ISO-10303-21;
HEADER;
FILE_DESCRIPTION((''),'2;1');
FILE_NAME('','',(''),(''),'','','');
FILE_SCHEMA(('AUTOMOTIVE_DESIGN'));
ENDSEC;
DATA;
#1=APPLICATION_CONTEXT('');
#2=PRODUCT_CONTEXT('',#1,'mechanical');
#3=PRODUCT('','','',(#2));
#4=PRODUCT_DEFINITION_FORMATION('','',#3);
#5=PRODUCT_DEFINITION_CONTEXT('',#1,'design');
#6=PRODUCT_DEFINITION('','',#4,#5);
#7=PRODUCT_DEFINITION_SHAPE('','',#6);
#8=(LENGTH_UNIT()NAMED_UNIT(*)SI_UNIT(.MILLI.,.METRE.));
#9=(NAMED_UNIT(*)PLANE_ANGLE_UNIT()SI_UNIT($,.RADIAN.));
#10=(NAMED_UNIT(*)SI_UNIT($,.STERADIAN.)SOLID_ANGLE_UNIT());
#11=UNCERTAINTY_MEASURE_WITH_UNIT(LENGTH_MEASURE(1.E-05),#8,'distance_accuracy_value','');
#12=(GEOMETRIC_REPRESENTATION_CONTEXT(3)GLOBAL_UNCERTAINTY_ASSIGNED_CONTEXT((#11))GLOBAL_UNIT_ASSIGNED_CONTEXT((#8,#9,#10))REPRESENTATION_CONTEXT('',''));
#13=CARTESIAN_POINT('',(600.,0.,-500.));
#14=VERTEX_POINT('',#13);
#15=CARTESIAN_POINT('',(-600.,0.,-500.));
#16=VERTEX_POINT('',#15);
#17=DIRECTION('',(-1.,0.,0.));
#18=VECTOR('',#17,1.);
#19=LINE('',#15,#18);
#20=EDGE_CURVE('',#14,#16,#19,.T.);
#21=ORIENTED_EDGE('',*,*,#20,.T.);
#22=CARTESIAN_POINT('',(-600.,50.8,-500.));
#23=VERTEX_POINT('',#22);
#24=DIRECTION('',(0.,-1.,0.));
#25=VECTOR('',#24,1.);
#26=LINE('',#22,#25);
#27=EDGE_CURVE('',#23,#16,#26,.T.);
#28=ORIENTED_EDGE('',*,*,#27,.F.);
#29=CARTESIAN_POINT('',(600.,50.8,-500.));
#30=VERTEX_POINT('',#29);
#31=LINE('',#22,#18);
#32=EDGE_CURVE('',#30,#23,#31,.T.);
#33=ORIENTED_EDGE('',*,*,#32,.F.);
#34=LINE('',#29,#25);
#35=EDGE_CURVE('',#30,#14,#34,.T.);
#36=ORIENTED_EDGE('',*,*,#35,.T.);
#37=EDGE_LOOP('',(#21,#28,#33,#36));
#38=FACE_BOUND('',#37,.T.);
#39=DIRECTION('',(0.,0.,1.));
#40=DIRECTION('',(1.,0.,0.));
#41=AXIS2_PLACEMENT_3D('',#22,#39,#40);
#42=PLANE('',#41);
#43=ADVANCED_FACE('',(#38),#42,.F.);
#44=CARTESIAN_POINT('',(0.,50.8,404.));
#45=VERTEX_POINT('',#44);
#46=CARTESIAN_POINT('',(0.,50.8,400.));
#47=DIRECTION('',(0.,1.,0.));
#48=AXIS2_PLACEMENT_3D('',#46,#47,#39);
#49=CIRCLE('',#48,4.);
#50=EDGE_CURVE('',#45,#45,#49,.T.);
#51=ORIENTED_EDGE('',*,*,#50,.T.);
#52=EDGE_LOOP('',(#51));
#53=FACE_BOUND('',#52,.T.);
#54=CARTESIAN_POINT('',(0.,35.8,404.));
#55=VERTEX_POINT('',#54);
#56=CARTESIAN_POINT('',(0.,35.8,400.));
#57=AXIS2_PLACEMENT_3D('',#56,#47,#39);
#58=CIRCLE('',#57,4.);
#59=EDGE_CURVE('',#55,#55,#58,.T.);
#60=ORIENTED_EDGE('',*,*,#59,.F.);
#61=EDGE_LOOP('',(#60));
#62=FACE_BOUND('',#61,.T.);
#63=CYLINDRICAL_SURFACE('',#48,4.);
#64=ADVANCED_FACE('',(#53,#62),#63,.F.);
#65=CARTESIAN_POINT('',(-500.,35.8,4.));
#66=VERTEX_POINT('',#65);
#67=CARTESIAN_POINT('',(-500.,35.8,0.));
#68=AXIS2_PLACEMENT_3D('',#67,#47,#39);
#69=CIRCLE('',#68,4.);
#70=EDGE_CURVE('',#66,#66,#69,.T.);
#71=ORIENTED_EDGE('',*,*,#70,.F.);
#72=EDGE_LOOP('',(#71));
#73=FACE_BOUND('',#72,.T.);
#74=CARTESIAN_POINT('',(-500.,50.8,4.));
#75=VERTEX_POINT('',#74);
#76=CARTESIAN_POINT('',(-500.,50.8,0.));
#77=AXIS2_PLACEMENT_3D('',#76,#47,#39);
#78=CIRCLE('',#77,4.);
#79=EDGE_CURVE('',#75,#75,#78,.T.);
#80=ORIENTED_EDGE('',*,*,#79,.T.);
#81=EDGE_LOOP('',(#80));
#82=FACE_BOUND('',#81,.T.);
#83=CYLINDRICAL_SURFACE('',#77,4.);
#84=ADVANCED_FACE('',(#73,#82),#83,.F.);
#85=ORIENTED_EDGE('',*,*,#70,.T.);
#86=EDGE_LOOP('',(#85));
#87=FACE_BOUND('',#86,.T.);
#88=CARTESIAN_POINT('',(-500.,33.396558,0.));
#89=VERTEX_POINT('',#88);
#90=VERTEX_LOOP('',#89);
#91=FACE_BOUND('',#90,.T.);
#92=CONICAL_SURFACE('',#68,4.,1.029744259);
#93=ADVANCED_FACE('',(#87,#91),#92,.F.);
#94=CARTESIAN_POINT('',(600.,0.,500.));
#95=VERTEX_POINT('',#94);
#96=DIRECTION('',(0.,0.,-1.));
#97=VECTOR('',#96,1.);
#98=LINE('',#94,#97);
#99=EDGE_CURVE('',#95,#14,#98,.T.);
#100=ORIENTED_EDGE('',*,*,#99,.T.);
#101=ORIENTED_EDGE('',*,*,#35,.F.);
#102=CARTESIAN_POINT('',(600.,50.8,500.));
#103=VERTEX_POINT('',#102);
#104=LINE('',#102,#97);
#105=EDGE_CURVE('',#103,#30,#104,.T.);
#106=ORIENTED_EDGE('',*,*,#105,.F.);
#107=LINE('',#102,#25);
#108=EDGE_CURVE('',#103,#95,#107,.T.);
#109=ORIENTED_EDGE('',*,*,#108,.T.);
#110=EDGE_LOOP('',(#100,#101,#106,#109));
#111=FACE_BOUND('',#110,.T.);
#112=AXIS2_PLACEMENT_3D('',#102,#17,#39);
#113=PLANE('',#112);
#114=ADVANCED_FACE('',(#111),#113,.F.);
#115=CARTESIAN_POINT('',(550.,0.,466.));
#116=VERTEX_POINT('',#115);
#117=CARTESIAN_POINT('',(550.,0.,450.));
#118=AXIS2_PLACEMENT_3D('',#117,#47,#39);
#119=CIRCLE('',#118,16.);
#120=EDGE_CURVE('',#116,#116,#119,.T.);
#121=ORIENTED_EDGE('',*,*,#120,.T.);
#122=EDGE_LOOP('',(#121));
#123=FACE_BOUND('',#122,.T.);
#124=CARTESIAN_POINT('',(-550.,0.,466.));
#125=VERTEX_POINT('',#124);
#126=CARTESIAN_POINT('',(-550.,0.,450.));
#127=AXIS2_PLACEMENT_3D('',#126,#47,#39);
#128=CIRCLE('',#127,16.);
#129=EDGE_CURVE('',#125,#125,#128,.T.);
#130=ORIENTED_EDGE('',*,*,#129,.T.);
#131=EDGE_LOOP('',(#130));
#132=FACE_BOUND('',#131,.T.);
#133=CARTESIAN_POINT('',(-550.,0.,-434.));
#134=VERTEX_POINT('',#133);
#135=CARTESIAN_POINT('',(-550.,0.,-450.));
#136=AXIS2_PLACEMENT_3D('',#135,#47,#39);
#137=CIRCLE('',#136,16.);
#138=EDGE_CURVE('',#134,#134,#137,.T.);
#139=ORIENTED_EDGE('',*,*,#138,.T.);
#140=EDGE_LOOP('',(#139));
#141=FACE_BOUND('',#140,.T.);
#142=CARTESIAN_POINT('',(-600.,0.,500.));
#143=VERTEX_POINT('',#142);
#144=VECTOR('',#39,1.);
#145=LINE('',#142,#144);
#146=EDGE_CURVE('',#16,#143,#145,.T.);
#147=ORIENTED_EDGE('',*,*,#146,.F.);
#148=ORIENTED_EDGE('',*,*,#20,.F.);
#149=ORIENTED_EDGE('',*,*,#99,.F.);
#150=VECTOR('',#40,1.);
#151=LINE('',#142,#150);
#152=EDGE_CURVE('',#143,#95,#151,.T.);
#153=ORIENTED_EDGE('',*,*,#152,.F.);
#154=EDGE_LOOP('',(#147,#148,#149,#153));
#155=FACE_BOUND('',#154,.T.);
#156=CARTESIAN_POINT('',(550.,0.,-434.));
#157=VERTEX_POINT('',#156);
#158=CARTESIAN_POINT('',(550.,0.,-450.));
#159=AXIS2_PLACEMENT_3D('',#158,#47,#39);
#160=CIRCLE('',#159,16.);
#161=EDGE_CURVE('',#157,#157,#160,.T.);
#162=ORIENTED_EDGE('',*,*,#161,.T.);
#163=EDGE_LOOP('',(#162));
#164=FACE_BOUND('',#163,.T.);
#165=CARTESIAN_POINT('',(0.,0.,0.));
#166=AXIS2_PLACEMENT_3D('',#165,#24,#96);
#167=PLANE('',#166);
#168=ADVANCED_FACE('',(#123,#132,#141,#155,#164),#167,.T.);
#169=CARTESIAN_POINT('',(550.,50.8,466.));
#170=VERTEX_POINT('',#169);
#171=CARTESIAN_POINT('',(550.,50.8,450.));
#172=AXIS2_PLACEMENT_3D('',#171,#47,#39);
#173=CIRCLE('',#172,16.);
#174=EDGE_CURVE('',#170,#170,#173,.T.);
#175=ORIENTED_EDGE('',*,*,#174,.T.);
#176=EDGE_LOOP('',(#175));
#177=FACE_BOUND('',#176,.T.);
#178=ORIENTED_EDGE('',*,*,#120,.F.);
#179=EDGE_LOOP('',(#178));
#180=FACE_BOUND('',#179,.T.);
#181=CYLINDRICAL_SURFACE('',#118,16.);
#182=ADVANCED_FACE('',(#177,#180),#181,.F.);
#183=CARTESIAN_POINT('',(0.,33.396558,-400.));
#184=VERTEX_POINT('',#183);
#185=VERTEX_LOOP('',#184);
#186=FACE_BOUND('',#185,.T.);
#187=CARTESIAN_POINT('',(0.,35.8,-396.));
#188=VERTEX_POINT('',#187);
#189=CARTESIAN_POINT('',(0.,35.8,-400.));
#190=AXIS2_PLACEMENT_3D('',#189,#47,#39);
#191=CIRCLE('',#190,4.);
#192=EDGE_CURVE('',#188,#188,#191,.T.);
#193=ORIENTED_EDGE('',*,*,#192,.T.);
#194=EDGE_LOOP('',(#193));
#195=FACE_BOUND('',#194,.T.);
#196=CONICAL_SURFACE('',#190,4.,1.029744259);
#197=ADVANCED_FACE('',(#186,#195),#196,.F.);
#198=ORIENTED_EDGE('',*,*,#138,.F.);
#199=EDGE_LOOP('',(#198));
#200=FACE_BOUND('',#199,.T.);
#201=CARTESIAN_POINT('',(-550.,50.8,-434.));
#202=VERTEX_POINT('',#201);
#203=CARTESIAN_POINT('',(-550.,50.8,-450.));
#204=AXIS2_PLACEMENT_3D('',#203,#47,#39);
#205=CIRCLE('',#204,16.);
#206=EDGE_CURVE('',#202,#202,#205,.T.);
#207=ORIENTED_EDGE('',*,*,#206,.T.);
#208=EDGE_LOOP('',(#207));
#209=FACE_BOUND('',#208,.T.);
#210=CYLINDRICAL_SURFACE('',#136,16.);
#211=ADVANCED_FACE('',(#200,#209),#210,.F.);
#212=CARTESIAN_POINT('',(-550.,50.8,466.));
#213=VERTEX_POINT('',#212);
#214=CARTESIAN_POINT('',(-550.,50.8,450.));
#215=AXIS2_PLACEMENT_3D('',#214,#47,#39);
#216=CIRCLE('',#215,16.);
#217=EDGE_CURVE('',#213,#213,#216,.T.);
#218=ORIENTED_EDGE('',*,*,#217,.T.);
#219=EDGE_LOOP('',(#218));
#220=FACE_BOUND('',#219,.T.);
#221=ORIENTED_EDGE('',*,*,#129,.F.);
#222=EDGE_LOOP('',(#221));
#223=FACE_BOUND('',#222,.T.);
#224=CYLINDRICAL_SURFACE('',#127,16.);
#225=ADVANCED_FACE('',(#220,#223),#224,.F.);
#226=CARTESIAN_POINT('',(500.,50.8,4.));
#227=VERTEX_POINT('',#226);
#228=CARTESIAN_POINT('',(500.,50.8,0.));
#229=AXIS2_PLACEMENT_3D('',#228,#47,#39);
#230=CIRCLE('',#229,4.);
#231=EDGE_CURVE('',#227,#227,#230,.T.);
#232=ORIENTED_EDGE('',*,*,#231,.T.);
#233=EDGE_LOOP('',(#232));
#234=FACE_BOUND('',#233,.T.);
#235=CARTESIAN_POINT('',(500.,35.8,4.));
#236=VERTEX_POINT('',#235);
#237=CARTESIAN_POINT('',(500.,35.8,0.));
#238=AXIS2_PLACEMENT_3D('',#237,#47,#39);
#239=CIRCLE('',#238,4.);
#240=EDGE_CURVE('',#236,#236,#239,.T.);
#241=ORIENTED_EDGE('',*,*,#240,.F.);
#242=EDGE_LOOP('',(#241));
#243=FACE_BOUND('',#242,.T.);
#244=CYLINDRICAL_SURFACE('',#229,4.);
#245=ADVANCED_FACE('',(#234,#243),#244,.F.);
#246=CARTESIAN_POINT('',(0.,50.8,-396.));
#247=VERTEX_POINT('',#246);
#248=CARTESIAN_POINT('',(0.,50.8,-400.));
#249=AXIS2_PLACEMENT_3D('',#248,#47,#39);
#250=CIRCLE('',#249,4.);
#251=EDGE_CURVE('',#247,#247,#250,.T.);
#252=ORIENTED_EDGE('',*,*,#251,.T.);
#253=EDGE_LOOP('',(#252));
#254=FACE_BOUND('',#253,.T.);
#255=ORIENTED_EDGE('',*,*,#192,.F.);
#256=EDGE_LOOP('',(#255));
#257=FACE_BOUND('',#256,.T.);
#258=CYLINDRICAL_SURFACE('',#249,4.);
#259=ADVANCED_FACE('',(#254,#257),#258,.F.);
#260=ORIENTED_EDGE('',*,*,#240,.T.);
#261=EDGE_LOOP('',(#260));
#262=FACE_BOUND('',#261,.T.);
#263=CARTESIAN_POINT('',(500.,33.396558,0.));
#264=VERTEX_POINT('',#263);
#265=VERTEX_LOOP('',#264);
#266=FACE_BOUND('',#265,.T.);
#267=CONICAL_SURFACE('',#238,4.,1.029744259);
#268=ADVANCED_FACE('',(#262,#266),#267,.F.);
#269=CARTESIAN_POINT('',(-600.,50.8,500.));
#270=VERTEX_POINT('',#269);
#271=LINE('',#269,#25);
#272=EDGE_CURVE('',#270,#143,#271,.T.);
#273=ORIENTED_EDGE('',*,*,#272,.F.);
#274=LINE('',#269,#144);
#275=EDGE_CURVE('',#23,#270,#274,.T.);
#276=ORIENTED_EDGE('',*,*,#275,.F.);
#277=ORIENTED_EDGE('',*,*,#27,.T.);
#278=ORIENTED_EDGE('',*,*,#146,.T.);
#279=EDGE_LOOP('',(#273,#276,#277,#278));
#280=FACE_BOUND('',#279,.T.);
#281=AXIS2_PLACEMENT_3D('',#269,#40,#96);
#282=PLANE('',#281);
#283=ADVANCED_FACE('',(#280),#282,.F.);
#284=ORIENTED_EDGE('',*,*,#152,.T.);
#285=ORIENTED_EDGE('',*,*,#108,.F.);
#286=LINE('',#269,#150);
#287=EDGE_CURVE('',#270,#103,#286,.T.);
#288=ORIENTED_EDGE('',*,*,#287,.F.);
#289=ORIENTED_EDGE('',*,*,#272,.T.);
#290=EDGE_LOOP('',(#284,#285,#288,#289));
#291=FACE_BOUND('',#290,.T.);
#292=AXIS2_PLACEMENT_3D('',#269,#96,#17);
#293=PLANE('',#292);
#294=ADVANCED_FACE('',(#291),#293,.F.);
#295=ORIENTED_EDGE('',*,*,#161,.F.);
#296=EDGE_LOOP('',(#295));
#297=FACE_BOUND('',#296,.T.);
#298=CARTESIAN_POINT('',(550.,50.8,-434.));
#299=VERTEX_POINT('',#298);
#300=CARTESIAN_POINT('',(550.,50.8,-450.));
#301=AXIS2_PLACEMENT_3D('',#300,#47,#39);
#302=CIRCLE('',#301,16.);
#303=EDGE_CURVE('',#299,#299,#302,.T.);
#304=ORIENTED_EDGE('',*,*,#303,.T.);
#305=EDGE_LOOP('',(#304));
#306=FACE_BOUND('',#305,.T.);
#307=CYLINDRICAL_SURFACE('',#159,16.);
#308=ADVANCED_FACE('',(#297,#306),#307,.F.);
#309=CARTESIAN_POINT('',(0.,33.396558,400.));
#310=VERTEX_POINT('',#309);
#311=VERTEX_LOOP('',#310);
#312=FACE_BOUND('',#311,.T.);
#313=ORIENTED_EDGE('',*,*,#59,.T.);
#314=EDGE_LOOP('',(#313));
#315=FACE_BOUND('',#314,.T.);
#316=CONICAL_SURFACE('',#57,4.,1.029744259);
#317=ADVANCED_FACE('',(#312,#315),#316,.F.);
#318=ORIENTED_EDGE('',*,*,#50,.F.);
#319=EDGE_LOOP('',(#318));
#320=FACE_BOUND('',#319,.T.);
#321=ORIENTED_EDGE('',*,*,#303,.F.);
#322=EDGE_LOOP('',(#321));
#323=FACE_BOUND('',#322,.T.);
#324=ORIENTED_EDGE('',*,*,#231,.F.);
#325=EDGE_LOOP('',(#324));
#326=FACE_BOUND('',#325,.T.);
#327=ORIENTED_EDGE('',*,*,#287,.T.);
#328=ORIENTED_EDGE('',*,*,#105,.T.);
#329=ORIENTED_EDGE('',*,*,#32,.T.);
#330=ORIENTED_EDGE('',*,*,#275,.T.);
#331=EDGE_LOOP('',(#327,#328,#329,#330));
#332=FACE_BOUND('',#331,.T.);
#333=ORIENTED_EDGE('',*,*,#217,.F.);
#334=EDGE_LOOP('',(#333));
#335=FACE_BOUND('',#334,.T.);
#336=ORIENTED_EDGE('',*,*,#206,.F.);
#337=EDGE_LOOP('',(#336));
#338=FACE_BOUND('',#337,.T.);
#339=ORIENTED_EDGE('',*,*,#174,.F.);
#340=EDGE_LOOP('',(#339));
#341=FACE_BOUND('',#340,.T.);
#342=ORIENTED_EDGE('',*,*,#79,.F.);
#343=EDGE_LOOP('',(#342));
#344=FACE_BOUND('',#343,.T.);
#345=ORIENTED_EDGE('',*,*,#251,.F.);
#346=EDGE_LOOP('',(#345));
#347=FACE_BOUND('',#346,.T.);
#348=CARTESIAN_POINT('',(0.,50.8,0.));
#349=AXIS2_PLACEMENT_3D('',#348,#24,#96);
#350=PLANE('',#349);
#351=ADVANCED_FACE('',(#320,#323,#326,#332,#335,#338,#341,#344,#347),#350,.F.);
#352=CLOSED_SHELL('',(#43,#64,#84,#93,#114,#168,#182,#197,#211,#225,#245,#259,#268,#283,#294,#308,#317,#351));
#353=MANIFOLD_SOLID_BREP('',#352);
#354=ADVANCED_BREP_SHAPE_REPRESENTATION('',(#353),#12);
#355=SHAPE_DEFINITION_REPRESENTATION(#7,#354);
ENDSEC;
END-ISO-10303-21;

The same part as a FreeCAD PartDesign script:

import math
import FreeCAD as App
import Part
import Sketcher
Q = App.Units.Quantity

doc = App.newDocument("Part")
body = doc.addObject("PartDesign::Body", "Body")

# Sketch on XZ plane
sketch1 = body.newObject("Sketcher::SketchObject", "Sketch")
sketch1.AttachmentSupport = (doc.getObject("XZ_Plane"), [""])
sketch1.MapMode = "FlatFace"
sketch1.addGeometry(Part.LineSegment(App.Vector(-600, -500, 0), App.Vector(-600, 500, 0)), False)
sketch1.addGeometry(Part.LineSegment(App.Vector(-600, 500, 0), App.Vector(600, 500, 0)), False)
sketch1.addGeometry(Part.LineSegment(App.Vector(600, 500, 0), App.Vector(600, -500, 0)), False)
sketch1.addGeometry(Part.LineSegment(App.Vector(600, -500, 0), App.Vector(-600, -500, 0)), False)
sketch1.addConstraint(Sketcher.Constraint("Coincident", 0, 2, 1, 1))
sketch1.addConstraint(Sketcher.Constraint("Coincident", 1, 2, 2, 1))
sketch1.addConstraint(Sketcher.Constraint("Coincident", 2, 2, 3, 1))
sketch1.addConstraint(Sketcher.Constraint("Coincident", 3, 2, 0, 1))
sketch1.addConstraint(Sketcher.Constraint("Vertical", 0))
sketch1.addConstraint(Sketcher.Constraint("Horizontal", 1))
sketch1.addConstraint(Sketcher.Constraint("Vertical", 2))
sketch1.addConstraint(Sketcher.Constraint("Horizontal", 3))
sketch1.addConstraint(Sketcher.Constraint("Symmetric", 0, 2, 2, 2, -1, 1))
sketch1.addConstraint(Sketcher.Constraint("DistanceX", 1, 1, 1, 2, Q("1200 mm")))
sketch1.addConstraint(Sketcher.Constraint("DistanceY", 0, 1, 0, 2, Q("1000 mm")))
pad1 = body.newObject("PartDesign::Pad", "Pad")
pad1.Profile = sketch1
pad1.Length = 50.8
pad1.Reversed = True

# Sketch on XZ plane
sketch2 = body.newObject("Sketcher::SketchObject", "Sketch001")
sketch2.AttachmentSupport = (doc.getObject("XZ_Plane"), [""])
sketch2.MapMode = "FlatFace"
sketch2.AttachmentOffset = App.Placement(App.Vector(0, 0, -50.8), App.Rotation())
sketch2.addGeometry(Part.ArcOfCircle(Part.Circle(App.Vector(-550, -450, 0), App.Vector(0, 0, 1), 16), math.radians(90), math.radians(360)), False)
sketch2.addGeometry(Part.ArcOfCircle(Part.Circle(App.Vector(-550, -450, 0), App.Vector(0, 0, 1), 16), math.radians(0), math.radians(90)), False)
sketch2.addGeometry(Part.ArcOfCircle(Part.Circle(App.Vector(550, -450, 0), App.Vector(0, 0, 1), 16), math.radians(90), math.radians(180)), False)
sketch2.addGeometry(Part.ArcOfCircle(Part.Circle(App.Vector(550, -450, 0), App.Vector(0, 0, 1), 16), math.radians(0), math.radians(90)), False)
sketch2.addGeometry(Part.ArcOfCircle(Part.Circle(App.Vector(550, -450, 0), App.Vector(0, 0, 1), 16), math.radians(180), math.radians(360)), False)
sketch2.addGeometry(Part.ArcOfCircle(Part.Circle(App.Vector(550, 450, 0), App.Vector(0, 0, 1), 16), math.radians(180), math.radians(270)), False)
sketch2.addGeometry(Part.ArcOfCircle(Part.Circle(App.Vector(550, 450, 0), App.Vector(0, 0, 1), 16), math.radians(0), math.radians(180)), False)
sketch2.addGeometry(Part.ArcOfCircle(Part.Circle(App.Vector(550, 450, 0), App.Vector(0, 0, 1), 16), math.radians(-90), math.radians(0)), False)
sketch2.addGeometry(Part.ArcOfCircle(Part.Circle(App.Vector(-550, 450, 0), App.Vector(0, 0, 1), 16), math.radians(-90), math.radians(0)), False)
sketch2.addGeometry(Part.ArcOfCircle(Part.Circle(App.Vector(-550, 450, 0), App.Vector(0, 0, 1), 16), math.radians(0), math.radians(270)), False)
sketch2.addConstraint(Sketcher.Constraint("Tangent", 0, 1, 1, 2))
sketch2.addConstraint(Sketcher.Constraint("Coincident", 1, 1, 0, 2))
sketch2.addConstraint(Sketcher.Constraint("Tangent", 2, 1, 3, 2))
sketch2.addConstraint(Sketcher.Constraint("Tangent", 3, 1, 4, 2))
sketch2.addConstraint(Sketcher.Constraint("Tangent", 4, 1, 2, 2))
sketch2.addConstraint(Sketcher.Constraint("Tangent", 5, 1, 6, 2))
sketch2.addConstraint(Sketcher.Constraint("Tangent", 6, 1, 7, 2))
sketch2.addConstraint(Sketcher.Constraint("Tangent", 7, 1, 5, 2))
sketch2.addConstraint(Sketcher.Constraint("Tangent", 8, 1, 9, 2))
sketch2.addConstraint(Sketcher.Constraint("Coincident", 9, 1, 8, 2))
sketch2.addConstraint(Sketcher.Constraint("Equal", 1, 2))
sketch2.addConstraint(Sketcher.Constraint("Equal", 4, 5))
sketch2.addConstraint(Sketcher.Constraint("Equal", 7, 8))
sketch2.addConstraint(Sketcher.Constraint("Symmetric", 0, 3, 5, 3, -1, 1))
sketch2.addConstraint(Sketcher.Constraint("Symmetric", 2, 3, 8, 3, -1, 1))
sketch2.addConstraint(Sketcher.Constraint("Symmetric", 0, 3, 2, 3, -2))
sketch2.addConstraint(Sketcher.Constraint("Horizontal", 4, 3, 1, 1))
sketch2.addConstraint(Sketcher.Constraint("Horizontal", 1, 1, 3, 1))
sketch2.addConstraint(Sketcher.Constraint("Horizontal", 3, 1, 4, 1))
sketch2.addConstraint(Sketcher.Constraint("Horizontal", 9, 3, 5, 1))
sketch2.addConstraint(Sketcher.Constraint("Horizontal", 5, 1, 6, 1))
sketch2.addConstraint(Sketcher.Constraint("Horizontal", 6, 1, 9, 1))
sketch2.addConstraint(Sketcher.Constraint("Vertical", 9, 3, 0, 1))
sketch2.addConstraint(Sketcher.Constraint("Vertical", 7, 3, 2, 1))
sketch2.addConstraint(Sketcher.Constraint("Vertical", 2, 1, 7, 1))
sketch2.addConstraint(Sketcher.Constraint("Vertical", 0, 1, 8, 1))
sketch2.addConstraint(Sketcher.Constraint("Radius", 0, Q("16 mm")))
sketch2.addConstraint(Sketcher.Constraint("DistanceX", 0, 3, -1, 1, Q("550 mm")))
sketch2.addConstraint(Sketcher.Constraint("DistanceY", 0, 3, -1, 1, Q("450 mm")))
pocket1 = body.newObject("PartDesign::Pocket", "Pocket")
pocket1.Profile = sketch2
pocket1.Type = "ThroughAll"
pocket1.Reversed = True

# Sketch on XZ plane
sketch3 = body.newObject("Sketcher::SketchObject", "Sketch002")
sketch3.AttachmentSupport = (doc.getObject("XZ_Plane"), [""])
sketch3.MapMode = "FlatFace"
sketch3.AttachmentOffset = App.Placement(App.Vector(0, 0, -50.8), App.Rotation())
sketch3.addGeometry(Part.Circle(App.Vector(-500, 0, 0), App.Vector(0, 0, 1), 4), False)
sketch3.addGeometry(Part.Circle(App.Vector(0, -400, 0), App.Vector(0, 0, 1), 4), False)
sketch3.addGeometry(Part.Circle(App.Vector(500, 0, 0), App.Vector(0, 0, 1), 4), False)
sketch3.addGeometry(Part.Circle(App.Vector(0, 400, 0), App.Vector(0, 0, 1), 4), False)
sketch3.addConstraint(Sketcher.Constraint("Equal", 0, 1))
sketch3.addConstraint(Sketcher.Constraint("Equal", 1, 2))
sketch3.addConstraint(Sketcher.Constraint("Equal", 2, 3))
sketch3.addConstraint(Sketcher.Constraint("Symmetric", 0, 3, 2, 3, -1, 1))
sketch3.addConstraint(Sketcher.Constraint("Symmetric", 1, 3, 3, 3, -1, 1))
sketch3.addConstraint(Sketcher.Constraint("PointOnObject", 0, 3, -1))
sketch3.addConstraint(Sketcher.Constraint("PointOnObject", 1, 3, -2))
sketch3.addConstraint(Sketcher.Constraint("Diameter", 0, Q("8 mm")))
sketch3.addConstraint(Sketcher.Constraint("DistanceX", 0, 3, -1, 1, Q("500 mm")))
sketch3.addConstraint(Sketcher.Constraint("DistanceY", 1, 3, -1, 1, Q("400 mm")))
doc.recompute()
hole = body.newObject("PartDesign::Hole", "Hole")
hole.Profile = sketch3
hole.ThreadType = "None"
hole.Diameter = 8
hole.DepthType = "Dimension"
hole.Depth = 15
hole.DrillPoint = "Angled"
hole.DrillPointAngle = 118
hole.Reversed = True

doc.recompute()
